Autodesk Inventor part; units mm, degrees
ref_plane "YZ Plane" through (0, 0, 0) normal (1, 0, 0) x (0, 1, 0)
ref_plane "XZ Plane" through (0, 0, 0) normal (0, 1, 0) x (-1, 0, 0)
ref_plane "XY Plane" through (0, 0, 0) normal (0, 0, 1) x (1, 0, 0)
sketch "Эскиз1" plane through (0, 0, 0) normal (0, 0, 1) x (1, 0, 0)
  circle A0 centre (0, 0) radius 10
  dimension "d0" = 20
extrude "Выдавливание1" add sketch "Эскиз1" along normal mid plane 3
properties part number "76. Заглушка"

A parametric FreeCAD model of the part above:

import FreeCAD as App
import Part
import Sketcher
Q = App.Units.Quantity

doc = App.newDocument("Part")
body = doc.addObject("PartDesign::Body", "Body")

sketch1 = doc.addObject("Sketcher::SketchObject", "Sketch")
body.addObject(sketch1)
sketch1.AttachmentSupport = (doc.XY_Plane, [""])
sketch1.MapMode = "FlatFace"
sketch1.addGeometry(Part.Circle(App.Vector(0, 0, 0), App.Vector(0, 0, 1), 10), False)
sketch1.addConstraint(Sketcher.Constraint("Coincident", 0, 3, -1, 1))
sketch1.addConstraint(Sketcher.Constraint("Diameter", 0, Q("20 mm")))
pad1 = doc.addObject("PartDesign::Pad", "Pad")
body.addObject(pad1)
pad1.Profile = sketch1
pad1.Length = 3
pad1.Midplane = True

doc.recompute()
